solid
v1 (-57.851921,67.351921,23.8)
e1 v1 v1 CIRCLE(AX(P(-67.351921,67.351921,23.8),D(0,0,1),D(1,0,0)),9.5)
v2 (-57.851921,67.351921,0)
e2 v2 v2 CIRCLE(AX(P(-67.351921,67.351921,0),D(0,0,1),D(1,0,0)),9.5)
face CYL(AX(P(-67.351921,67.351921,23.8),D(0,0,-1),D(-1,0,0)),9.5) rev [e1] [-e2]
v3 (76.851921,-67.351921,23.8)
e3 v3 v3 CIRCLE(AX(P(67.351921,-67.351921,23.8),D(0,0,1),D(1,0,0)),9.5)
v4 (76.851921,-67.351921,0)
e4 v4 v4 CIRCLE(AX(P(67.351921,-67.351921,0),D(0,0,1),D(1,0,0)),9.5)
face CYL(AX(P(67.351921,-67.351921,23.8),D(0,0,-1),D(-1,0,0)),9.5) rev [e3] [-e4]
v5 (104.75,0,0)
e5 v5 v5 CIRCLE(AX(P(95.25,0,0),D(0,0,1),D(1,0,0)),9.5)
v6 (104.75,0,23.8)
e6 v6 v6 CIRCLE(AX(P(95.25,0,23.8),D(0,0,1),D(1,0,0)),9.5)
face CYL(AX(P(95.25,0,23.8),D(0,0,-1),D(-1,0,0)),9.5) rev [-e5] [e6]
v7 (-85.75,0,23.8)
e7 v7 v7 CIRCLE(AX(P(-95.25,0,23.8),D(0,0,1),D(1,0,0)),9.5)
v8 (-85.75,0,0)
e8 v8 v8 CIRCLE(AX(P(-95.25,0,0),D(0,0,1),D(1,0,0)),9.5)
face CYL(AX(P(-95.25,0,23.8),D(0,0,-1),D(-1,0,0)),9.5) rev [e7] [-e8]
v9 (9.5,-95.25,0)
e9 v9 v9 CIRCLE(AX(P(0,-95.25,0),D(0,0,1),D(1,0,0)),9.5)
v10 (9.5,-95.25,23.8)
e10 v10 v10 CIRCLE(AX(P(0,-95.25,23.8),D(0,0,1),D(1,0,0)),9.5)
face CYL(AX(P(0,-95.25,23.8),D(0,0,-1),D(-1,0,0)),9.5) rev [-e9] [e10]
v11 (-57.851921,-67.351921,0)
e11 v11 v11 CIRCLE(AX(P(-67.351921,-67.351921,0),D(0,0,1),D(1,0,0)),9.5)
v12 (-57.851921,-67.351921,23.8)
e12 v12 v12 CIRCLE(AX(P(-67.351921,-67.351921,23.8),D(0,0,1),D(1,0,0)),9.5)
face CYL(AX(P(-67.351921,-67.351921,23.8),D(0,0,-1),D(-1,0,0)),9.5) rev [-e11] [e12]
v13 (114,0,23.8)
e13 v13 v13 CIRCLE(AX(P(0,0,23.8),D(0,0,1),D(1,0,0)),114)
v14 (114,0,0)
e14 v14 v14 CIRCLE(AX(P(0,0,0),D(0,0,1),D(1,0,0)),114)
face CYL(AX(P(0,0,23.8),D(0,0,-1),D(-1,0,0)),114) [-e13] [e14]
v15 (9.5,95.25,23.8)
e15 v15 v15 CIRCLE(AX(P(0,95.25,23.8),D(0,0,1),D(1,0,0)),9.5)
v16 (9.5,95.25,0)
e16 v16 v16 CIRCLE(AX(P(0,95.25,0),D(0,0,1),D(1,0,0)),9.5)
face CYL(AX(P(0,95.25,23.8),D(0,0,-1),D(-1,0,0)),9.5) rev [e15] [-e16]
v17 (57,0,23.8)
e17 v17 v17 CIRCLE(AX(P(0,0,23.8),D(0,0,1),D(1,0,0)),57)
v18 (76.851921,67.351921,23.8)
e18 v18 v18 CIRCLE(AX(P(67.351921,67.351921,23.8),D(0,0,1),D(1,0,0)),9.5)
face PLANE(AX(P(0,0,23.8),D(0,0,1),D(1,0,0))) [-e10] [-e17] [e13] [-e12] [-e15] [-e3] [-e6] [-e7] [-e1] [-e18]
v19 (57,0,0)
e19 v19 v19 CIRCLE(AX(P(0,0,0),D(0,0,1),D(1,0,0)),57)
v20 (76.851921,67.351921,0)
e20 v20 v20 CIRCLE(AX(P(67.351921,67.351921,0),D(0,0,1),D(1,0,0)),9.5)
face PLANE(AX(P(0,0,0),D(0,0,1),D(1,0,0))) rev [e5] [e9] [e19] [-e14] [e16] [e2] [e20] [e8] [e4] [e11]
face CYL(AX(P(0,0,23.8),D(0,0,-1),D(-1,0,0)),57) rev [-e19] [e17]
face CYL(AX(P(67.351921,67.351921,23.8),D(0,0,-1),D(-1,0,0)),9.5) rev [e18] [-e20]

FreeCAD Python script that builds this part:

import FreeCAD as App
import Part
import Sketcher
from FreeCAD import Vector
Q = App.Units.Quantity

doc = App.newDocument("Part")
body = doc.addObject("PartDesign::Body", "Body")

sketch1 = doc.addObject("Sketcher::SketchObject", "Sketch")
body.addObject(sketch1)
sketch1.AttachmentSupport = (doc.XY_Plane, [""])
sketch1.MapMode = "FlatFace"
sketch1.addGeometry([
    Part.Circle(Vector(0, 0, 0), Vector(0, 0, 1), 114),
    Part.Circle(Vector(-67, -67, 0), Vector(0, 0, 1), 10),
    Part.Circle(Vector(0, -95, 0), Vector(0, 0, 1), 10),
    Part.Circle(Vector(67, -67, 0), Vector(0, 0, 1), 10),
    Part.Circle(Vector(-95, 0, 0), Vector(0, 0, 1), 10),
    Part.Circle(Vector(-67, 67, 0), Vector(0, 0, 1), 10),
    Part.Circle(Vector(0, 0, 0), Vector(0, 0, 1), 57),
    Part.Circle(Vector(95, 0, 0), Vector(0, 0, 1), 10),
    Part.Circle(Vector(0, 95, 0), Vector(0, 0, 1), 10),
    Part.Circle(Vector(67, 67, 0), Vector(0, 0, 1), 10),
], False)
sketch1.addConstraint([
    Sketcher.Constraint("Coincident", 0, 3, -1, 1),
    Sketcher.Constraint("Coincident", 6, 3, -1, 1),
    Sketcher.Constraint("Equal", 1, 2),
    Sketcher.Constraint("Equal", 2, 3),
    Sketcher.Constraint("Equal", 3, 4),
    Sketcher.Constraint("Equal", 4, 5),
    Sketcher.Constraint("Equal", 5, 7),
    Sketcher.Constraint("Equal", 7, 8),
    Sketcher.Constraint("Equal", 8, 9),
    Sketcher.Constraint("Symmetric", 3, 3, 5, 3, -1, 1),
    Sketcher.Constraint("Symmetric", 4, 3, 7, 3, -1, 1),
    Sketcher.Constraint("Symmetric", 2, 3, 8, 3, -1, 1),
    Sketcher.Constraint("Symmetric", 1, 3, 9, 3, -1, 1),
    Sketcher.Constraint("Symmetric", 1, 3, 3, 3, -2),
    Sketcher.Constraint("PointOnObject", 2, 3, -2),
    Sketcher.Constraint("PointOnObject", 4, 3, -1),
    Sketcher.Constraint("Diameter", 0, Q("228 mm")),
    Sketcher.Constraint("Diameter", 1, Q("19 mm")),
    Sketcher.Constraint("Diameter", 6, Q("114 mm")),
    Sketcher.Constraint("DistanceY", 2, 3, -1, 1, Q("95.25 mm")),
    Sketcher.Constraint("DistanceX", 4, 3, -1, 1, Q("95.25 mm")),
    Sketcher.Constraint("DistanceX", 1, 3, -1, 1, Q("67.351921 mm")),
    Sketcher.Constraint("DistanceY", 1, 3, -1, 1, Q("67.351921 mm")),
])
pad1 = doc.addObject("PartDesign::Pad", "Pad")
body.addObject(pad1)
pad1.Profile = sketch1
pad1.Length = 23.8

doc.recompute()
